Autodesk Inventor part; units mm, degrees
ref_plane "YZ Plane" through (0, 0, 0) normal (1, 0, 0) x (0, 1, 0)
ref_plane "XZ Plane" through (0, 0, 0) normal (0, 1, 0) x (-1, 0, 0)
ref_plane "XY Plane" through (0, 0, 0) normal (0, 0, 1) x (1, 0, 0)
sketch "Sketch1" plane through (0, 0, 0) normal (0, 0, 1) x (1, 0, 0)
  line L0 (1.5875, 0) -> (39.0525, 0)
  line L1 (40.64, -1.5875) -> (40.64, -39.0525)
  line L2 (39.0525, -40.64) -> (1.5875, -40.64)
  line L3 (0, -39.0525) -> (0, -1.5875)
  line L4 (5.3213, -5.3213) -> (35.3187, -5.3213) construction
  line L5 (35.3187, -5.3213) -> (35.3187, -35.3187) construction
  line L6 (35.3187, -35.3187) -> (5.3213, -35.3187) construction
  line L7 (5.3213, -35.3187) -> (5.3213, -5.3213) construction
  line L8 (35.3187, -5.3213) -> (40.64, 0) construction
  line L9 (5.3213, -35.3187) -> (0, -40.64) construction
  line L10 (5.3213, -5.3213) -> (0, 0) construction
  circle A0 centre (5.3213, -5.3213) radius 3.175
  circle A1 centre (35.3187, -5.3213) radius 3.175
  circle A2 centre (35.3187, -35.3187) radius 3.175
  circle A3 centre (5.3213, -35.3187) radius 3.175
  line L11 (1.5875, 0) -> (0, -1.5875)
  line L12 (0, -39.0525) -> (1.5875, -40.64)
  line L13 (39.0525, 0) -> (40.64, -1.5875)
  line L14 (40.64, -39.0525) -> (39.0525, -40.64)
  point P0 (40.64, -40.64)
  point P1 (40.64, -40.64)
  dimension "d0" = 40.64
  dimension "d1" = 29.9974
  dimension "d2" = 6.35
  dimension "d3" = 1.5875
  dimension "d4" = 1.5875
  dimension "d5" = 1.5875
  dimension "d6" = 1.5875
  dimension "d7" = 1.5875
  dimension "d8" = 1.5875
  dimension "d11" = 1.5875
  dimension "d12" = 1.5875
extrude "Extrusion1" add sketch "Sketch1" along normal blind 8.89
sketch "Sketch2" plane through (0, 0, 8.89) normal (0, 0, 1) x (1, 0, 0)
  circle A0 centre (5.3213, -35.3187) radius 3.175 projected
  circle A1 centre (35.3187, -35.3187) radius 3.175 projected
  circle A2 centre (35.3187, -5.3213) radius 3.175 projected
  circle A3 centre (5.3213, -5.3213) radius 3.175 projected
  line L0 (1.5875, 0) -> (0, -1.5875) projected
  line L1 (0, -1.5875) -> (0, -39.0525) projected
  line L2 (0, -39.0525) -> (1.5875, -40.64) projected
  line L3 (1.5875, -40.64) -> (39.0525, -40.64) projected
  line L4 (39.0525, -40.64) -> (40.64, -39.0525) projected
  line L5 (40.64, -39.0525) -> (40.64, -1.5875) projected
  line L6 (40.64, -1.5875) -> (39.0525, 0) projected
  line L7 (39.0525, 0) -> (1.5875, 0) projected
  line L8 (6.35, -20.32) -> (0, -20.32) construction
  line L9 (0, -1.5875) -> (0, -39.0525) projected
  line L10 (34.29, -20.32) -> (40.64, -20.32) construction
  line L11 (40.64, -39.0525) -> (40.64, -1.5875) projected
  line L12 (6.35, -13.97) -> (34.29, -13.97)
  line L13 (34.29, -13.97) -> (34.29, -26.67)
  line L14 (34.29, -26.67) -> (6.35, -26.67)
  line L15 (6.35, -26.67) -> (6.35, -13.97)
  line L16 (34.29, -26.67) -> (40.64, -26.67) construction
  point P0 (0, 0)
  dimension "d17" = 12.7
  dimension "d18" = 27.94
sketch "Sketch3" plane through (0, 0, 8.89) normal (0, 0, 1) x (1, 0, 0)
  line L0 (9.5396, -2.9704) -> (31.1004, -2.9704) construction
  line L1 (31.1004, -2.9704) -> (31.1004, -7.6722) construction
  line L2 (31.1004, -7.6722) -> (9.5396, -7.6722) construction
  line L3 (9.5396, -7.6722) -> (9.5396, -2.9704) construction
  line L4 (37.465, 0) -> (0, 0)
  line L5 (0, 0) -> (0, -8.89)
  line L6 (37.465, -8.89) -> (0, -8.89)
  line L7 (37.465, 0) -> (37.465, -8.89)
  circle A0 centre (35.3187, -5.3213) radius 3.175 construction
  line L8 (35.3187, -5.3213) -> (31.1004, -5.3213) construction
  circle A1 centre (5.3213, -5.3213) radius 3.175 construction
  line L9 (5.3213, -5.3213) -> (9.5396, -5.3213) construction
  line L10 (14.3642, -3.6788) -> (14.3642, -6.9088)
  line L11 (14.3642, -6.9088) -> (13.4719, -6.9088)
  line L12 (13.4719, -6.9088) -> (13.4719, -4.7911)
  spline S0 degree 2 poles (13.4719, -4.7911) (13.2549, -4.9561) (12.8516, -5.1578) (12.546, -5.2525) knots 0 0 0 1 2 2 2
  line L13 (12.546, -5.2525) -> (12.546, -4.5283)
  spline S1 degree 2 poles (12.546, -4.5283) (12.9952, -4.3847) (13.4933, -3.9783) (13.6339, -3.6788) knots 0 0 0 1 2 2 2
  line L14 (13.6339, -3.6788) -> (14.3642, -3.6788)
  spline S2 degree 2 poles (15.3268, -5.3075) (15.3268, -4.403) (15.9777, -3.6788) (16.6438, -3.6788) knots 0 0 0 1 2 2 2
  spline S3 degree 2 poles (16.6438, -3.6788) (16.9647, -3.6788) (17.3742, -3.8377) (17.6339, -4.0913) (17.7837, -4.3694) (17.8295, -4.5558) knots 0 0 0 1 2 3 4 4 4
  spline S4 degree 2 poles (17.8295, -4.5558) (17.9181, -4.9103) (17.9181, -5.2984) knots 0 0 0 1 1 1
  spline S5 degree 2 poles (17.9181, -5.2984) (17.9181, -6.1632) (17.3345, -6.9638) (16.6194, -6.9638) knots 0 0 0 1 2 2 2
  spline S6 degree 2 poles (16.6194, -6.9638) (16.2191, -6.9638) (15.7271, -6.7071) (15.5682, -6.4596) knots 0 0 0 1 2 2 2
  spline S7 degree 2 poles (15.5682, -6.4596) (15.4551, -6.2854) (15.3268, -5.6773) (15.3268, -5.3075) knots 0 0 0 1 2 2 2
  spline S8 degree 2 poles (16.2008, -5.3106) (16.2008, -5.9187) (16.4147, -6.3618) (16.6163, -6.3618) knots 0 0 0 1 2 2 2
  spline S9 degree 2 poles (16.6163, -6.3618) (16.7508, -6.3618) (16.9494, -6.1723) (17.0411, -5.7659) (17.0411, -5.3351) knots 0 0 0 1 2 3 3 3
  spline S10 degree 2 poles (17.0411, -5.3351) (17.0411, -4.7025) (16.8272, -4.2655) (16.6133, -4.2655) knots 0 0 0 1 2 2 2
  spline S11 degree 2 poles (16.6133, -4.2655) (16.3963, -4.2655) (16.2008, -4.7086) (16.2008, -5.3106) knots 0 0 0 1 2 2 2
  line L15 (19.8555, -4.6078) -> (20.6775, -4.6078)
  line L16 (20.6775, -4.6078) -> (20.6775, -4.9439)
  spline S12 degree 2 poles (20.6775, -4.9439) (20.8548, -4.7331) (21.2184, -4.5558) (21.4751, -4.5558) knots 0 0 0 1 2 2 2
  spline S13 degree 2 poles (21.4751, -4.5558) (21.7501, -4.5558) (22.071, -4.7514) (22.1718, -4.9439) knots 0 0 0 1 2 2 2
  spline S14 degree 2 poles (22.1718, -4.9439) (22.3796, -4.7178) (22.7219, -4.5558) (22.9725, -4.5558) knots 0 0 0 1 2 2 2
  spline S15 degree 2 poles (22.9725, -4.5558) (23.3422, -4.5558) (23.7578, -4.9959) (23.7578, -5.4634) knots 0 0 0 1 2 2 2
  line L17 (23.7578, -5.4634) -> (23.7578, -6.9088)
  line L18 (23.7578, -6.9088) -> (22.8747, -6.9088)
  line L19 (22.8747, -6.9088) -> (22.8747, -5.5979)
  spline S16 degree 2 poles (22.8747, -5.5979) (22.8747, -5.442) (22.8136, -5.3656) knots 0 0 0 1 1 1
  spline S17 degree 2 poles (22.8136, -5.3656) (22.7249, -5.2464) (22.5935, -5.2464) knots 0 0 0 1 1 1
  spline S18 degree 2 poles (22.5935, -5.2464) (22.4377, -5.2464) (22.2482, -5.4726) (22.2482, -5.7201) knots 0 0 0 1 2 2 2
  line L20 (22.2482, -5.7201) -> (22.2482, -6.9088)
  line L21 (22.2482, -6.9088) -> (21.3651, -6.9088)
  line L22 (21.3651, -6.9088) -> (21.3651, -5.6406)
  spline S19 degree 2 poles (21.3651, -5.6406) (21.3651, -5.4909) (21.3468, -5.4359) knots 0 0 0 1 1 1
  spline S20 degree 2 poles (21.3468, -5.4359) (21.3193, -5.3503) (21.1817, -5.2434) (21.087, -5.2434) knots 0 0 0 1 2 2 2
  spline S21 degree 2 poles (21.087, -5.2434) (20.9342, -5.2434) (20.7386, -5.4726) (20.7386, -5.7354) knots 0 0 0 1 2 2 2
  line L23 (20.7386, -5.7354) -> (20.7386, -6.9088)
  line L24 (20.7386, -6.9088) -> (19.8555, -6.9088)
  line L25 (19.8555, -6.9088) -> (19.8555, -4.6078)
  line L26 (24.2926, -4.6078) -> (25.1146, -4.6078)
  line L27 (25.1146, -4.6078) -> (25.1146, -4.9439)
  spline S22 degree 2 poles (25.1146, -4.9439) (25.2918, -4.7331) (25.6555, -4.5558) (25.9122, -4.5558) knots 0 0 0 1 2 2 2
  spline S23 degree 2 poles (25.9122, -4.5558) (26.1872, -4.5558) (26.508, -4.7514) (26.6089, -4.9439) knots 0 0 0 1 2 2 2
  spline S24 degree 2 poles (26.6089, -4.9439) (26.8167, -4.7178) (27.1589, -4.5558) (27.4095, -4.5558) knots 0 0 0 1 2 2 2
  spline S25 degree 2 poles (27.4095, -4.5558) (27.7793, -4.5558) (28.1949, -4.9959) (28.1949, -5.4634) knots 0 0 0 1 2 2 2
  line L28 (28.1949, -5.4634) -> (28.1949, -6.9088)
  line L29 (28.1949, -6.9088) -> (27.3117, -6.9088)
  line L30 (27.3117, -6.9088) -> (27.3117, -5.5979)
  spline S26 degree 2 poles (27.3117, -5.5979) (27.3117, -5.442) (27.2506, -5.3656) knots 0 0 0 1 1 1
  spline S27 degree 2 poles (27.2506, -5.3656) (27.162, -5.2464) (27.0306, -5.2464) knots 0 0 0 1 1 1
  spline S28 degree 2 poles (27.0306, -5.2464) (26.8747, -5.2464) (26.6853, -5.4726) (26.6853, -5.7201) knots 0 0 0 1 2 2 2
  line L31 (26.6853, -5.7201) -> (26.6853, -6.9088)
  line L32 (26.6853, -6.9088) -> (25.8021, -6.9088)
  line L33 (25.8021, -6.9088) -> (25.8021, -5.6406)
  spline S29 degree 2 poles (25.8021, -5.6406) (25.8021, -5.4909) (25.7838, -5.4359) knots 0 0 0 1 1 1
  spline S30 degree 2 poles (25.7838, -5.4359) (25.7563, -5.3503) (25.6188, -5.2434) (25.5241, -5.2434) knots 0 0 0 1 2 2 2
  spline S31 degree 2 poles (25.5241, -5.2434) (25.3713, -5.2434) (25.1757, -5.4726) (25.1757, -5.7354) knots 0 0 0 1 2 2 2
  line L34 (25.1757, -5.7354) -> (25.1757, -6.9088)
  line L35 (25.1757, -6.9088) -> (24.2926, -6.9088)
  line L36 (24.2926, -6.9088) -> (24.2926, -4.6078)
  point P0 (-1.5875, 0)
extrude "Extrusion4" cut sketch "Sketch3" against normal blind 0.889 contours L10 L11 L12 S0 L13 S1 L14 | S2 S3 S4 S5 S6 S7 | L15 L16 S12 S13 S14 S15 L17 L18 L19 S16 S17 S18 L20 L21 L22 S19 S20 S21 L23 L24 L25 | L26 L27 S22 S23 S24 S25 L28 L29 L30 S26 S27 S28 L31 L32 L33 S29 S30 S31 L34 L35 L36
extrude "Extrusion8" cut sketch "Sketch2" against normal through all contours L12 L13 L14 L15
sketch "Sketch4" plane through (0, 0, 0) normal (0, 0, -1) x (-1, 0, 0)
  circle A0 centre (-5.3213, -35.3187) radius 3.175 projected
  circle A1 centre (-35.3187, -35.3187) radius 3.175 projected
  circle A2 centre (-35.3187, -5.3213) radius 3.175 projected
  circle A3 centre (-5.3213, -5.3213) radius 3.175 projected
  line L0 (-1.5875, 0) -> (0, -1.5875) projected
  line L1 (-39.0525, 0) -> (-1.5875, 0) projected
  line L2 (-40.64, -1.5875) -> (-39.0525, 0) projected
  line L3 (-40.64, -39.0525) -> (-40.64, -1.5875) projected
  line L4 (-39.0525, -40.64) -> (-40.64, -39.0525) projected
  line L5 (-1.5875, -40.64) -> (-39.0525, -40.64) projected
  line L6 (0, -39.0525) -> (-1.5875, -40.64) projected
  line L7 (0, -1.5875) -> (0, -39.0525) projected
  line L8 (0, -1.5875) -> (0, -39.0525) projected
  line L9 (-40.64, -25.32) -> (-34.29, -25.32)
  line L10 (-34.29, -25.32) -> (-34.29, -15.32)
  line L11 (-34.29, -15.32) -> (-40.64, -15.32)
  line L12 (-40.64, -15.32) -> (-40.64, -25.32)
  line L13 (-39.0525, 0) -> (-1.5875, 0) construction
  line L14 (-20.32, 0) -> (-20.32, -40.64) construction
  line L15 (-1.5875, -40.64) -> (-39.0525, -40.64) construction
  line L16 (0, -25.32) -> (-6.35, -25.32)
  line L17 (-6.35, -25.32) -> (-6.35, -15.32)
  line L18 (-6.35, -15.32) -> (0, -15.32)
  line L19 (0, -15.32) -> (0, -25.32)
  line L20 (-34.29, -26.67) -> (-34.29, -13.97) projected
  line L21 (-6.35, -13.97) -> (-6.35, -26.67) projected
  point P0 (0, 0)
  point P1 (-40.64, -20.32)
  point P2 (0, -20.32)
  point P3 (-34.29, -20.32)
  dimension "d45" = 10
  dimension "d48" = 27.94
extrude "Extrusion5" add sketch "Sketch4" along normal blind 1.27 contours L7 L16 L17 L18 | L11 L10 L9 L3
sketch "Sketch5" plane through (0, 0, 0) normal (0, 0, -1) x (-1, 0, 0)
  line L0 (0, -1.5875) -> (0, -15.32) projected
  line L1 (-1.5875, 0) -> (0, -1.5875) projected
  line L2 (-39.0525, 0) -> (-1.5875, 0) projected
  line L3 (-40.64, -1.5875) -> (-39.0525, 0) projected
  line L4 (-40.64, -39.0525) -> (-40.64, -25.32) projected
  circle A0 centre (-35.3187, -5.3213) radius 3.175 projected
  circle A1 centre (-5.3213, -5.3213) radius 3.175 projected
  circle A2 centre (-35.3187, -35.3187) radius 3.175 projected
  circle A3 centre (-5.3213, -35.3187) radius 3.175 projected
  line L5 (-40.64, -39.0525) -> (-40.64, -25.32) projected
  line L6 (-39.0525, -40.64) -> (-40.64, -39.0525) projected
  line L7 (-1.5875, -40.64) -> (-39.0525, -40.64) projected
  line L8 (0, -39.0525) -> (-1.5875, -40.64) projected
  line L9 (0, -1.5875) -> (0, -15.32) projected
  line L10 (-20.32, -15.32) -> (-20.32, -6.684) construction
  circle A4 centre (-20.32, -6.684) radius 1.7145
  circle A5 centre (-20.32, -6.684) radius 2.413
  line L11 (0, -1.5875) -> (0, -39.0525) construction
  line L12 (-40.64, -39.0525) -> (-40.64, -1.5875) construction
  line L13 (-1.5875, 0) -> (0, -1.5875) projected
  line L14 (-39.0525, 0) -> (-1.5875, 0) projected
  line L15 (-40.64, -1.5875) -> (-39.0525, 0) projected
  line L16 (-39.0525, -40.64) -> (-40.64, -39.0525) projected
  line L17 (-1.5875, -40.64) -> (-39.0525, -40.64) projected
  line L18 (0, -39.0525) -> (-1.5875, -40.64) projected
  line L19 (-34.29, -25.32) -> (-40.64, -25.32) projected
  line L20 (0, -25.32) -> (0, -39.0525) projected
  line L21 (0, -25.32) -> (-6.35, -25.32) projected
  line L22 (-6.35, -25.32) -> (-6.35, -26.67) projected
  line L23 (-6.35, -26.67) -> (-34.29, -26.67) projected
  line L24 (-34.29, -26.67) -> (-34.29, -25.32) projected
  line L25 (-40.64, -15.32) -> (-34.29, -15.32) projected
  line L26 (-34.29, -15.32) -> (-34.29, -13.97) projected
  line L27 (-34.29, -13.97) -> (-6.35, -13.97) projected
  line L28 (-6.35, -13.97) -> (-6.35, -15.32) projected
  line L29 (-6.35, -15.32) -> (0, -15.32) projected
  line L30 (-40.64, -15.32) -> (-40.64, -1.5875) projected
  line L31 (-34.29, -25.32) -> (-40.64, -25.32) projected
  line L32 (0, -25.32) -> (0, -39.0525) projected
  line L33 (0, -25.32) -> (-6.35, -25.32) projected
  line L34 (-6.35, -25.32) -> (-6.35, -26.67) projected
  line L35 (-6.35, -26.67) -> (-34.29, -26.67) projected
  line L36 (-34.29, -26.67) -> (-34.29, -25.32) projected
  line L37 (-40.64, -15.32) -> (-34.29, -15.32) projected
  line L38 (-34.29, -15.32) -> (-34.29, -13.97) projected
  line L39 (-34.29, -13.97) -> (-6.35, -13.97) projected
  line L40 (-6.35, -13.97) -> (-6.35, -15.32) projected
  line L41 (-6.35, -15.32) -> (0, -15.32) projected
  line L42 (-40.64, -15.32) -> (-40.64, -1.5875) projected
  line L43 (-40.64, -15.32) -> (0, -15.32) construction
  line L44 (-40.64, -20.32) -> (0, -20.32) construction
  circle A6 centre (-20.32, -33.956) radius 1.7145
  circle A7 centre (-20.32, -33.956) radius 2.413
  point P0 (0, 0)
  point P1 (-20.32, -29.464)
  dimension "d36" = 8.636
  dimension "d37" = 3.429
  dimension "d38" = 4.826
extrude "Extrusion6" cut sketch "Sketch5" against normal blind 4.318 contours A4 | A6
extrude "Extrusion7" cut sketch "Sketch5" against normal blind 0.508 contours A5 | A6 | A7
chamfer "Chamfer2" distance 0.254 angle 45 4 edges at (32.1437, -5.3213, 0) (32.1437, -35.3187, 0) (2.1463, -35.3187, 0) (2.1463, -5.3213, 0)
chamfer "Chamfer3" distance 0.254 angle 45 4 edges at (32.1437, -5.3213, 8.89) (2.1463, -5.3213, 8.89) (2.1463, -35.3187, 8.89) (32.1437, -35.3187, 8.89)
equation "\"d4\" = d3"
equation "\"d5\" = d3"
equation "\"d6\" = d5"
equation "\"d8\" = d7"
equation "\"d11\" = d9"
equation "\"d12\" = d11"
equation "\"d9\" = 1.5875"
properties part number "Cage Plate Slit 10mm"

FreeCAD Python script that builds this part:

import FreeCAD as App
import Part
import Sketcher
from FreeCAD import Vector
Q = App.Units.Quantity


def edges_at(feature, points):
    """Names of the edges that pass closest to the given points."""
    edges = feature.Shape.Edges
    near = lambda p: min(range(len(edges)), key=lambda i: edges[i].distToShape(Part.Vertex(*p))[0])
    return sorted({f"Edge{near(p) + 1}" for p in points})


def add_polygon(sketch, points):
    """Adds a closed chain of lines whose ends are joined by coincident constraints."""
    first, n = sketch.GeometryCount, len(points)
    for a, b in zip(points, points[1:] + points[:1]):
        sketch.addGeometry(Part.LineSegment(App.Vector(*a, 0), App.Vector(*b, 0)), False)
    for i in range(n):
        sketch.addConstraint(Sketcher.Constraint("Coincident", first + i, 2, first + (i + 1) % n, 1))

doc = App.newDocument("Part")
params = doc.addObject("Spreadsheet::Sheet", "Params")
for row, (alias, value) in enumerate([
    ("sketch1_diameter", "0.25 in"),
    ("pad1_length", "0.35 in"),
    ("pocket1_length", "0.035 in"),
    ("sketch3_width", "1.1 in"),
    ("sketch3_height", "0.5 in"),
    ("sketch4_width", "0.25 in"),
    ("pad2_length", "0.05 in"),
    ("sketch5_diameter", "0.135 in"),
    ("pocket3_length", "0.17 in"),
    ("sketch6_diameter", "0.19 in"),
    ("sketch6_diameter2", "0.135 in"),
    ("pocket4_length", "0.02 in"),
    ("chamfer_size", "0.01 in"),
    ("chamfer2_size", "0.01 in"),
], start=1):
    params.set(f"A{row}", alias)
    params.set(f"B{row}", "=" + value)
    params.setAlias(f"B{row}", alias)

body = doc.addObject("PartDesign::Body", "Body")

sketch1 = doc.addObject("Sketcher::SketchObject", "Sketch")
body.addObject(sketch1)
sketch1.AttachmentSupport = (doc.XY_Plane, [""])
sketch1.MapMode = "FlatFace"
add_polygon(sketch1, [(39.0525, 0), (1.5875, 0), (0, -1.5875), (0, -39.0525), (1.5875, -40.64), (39.0525, -40.64), (40.64, -39.0525), (40.64, -1.5875)])
sketch1.addGeometry(Part.Circle(Vector(5.3213, -35.3187, 0), Vector(0, 0, 1), 3.175), False)
sketch1.addGeometry(Part.Circle(Vector(35.3187, -35.3187, 0), Vector(0, 0, 1), 3.175), False)
sketch1.addGeometry(Part.Circle(Vector(5.3213, -5.3213, 0), Vector(0, 0, 1), 3.175), False)
sketch1.addGeometry(Part.Circle(Vector(35.3187, -5.3213, 0), Vector(0, 0, 1), 3.175), False)
sketch1.addConstraint([
    Sketcher.Constraint("Horizontal", 0),
    Sketcher.Constraint("Vertical", 2),
    Sketcher.Constraint("Horizontal", 4),
    Sketcher.Constraint("Vertical", 6),
    Sketcher.Constraint("Equal", 8, 9),
    Sketcher.Constraint("Equal", 9, 10),
    Sketcher.Constraint("Equal", 10, 11),
    Sketcher.Constraint("PointOnObject", 0, 2, -1),
    Sketcher.Constraint("PointOnObject", 1, 2, -2),
    Sketcher.Constraint("Perpendicular", 1, 3),
    Sketcher.Constraint("Perpendicular", 3, 5),
    Sketcher.Constraint("Perpendicular", 5, 7),
    Sketcher.Constraint("Horizontal", 8, 3, 9, 3),
    Sketcher.Constraint("Horizontal", 10, 3, 11, 3),
    Sketcher.Constraint("Horizontal", 2, 2, 5, 2),
    Sketcher.Constraint("Horizontal", 1, 2, 6, 2),
    Sketcher.Constraint("Vertical", 8, 3, 10, 3),
    Sketcher.Constraint("Vertical", 9, 3, 11, 3),
    Sketcher.Constraint("Vertical", 0, 2, 3, 2),
    Sketcher.Constraint("Vertical", 4, 2, 7, 2),
    Sketcher.Constraint("Equal", 4, 2),
    Sketcher.Constraint("Diameter", 8, Q("0.25 in")),
    Sketcher.Constraint("DistanceY", 3, 2, -1, 1, Q("1.6 in")),
    Sketcher.Constraint("DistanceX", -1, 1, 0, 2, Q("0.0625 in")),
    Sketcher.Constraint("DistanceX", 8, 3, 9, 3, Q("1.181 in")),
    Sketcher.Constraint("DistanceY", 8, 3, 10, 3, Q("1.181 in")),
    Sketcher.Constraint("DistanceX", 0, 2, 10, 3, Q("0.147 in")),
    Sketcher.Constraint("DistanceY", 10, 3, 1, 2, Q("0.147 in")),
])
sketch1.setExpression("Constraints[29]", "Params.sketch1_diameter")
pad1 = doc.addObject("PartDesign::Pad", "Pad")
body.addObject(pad1)
pad1.Profile = sketch1
pad1.setExpression("Length", "Params.pad1_length")

sketch2 = doc.addObject("Sketcher::SketchObject", "Sketch001")
body.addObject(sketch2)
sketch2.AttachmentSupport = (doc.XY_Plane, [""])
sketch2.MapMode = "FlatFace"
sketch2.AttachmentOffset = App.Placement(Vector(0, 0, 0.35 * 25.4), App.Rotation())
sketch2.addGeometry([
    Part.LineSegment(Vector(14.3642, -6.9088, 0), Vector(14.3642, -3.6788, 0)),
    Part.LineSegment(Vector(14.3642, -3.6788, 0), Vector(13.6339, -3.6788, 0)),
    Part.BSplineCurve([Vector(12.546, -4.5283, 0), Vector(12.9952, -4.3847, 0), Vector(13.4933, -3.9783, 0), Vector(13.6339, -3.6788, 0)], [3, 1, 3], [0, 1, 2], False, 2, [1, 1, 1, 1], False),
    Part.LineSegment(Vector(12.546, -4.5283, 0), Vector(12.546, -5.2525, 0)),
    Part.BSplineCurve([Vector(13.4719, -4.7911, 0), Vector(13.2549, -4.9561, 0), Vector(12.8516, -5.1578, 0), Vector(12.546, -5.2525, 0)], [3, 1, 3], [0, 1, 2], False, 2, [1, 1, 1, 1], False),
    Part.LineSegment(Vector(13.4719, -4.7911, 0), Vector(13.4719, -6.9088, 0)),
    Part.LineSegment(Vector(13.4719, -6.9088, 0), Vector(14.3642, -6.9088, 0)),
    Part.BSplineCurve([Vector(15.3268, -5.3075, 0), Vector(15.3268, -4.403, 0), Vector(15.9777, -3.6788, 0), Vector(16.6438, -3.6788, 0)], [3, 1, 3], [0, 1, 2], False, 2, [1, 1, 1, 1], False),
    Part.BSplineCurve([Vector(15.5682, -6.4596, 0), Vector(15.4551, -6.2854, 0), Vector(15.3268, -5.6773, 0), Vector(15.3268, -5.3075, 0)], [3, 1, 3], [0, 1, 2], False, 2, [1, 1, 1, 1], False),
    Part.BSplineCurve([Vector(16.6194, -6.9638, 0), Vector(16.2191, -6.9638, 0), Vector(15.7271, -6.7071, 0), Vector(15.5682, -6.4596, 0)], [3, 1, 3], [0, 1, 2], False, 2, [1, 1, 1, 1], False),
    Part.BSplineCurve([Vector(17.9181, -5.2984, 0), Vector(17.9181, -6.1632, 0), Vector(17.3345, -6.9638, 0), Vector(16.6194, -6.9638, 0)], [3, 1, 3], [0, 1, 2], False, 2, [1, 1, 1, 1], False),
    Part.BSplineCurve([Vector(17.8295, -4.5558, 0), Vector(17.9181, -4.9103, 0), Vector(17.9181, -5.2984, 0)], [3, 3], [0, 1], False, 2, [1, 1, 1], False),
    Part.BSplineCurve([Vector(16.6438, -3.6788, 0), Vector(16.9647, -3.6788, 0), Vector(17.3742, -3.8377, 0), Vector(17.6339, -4.0913, 0), Vector(17.7837, -4.3694, 0), Vector(17.8295, -4.5558, 0)], [3, 1, 1, 1, 3], [0, 1, 2, 3, 4], False, 2, [1, 1, 1, 1, 1, 1], False),
    Part.BSplineCurve([Vector(16.2008, -5.3106, 0), Vector(16.2008, -5.9187, 0), Vector(16.4147, -6.3618, 0), Vector(16.6163, -6.3618, 0)], [3, 1, 3], [0, 1, 2], False, 2, [1, 1, 1, 1], False),
    Part.BSplineCurve([Vector(16.6133, -4.2655, 0), Vector(16.3963, -4.2655, 0), Vector(16.2008, -4.7086, 0), Vector(16.2008, -5.3106, 0)], [3, 1, 3], [0, 1, 2], False, 2, [1, 1, 1, 1], False),
    Part.BSplineCurve([Vector(17.0411, -5.3351, 0), Vector(17.0411, -4.7025, 0), Vector(16.8272, -4.2655, 0), Vector(16.6133, -4.2655, 0)], [3, 1, 3], [0, 1, 2], False, 2, [1, 1, 1, 1], False),
    Part.BSplineCurve([Vector(16.6163, -6.3618, 0), Vector(16.7508, -6.3618, 0), Vector(16.9494, -6.1723, 0), Vector(17.0411, -5.7659, 0), Vector(17.0411, -5.3351, 0)], [3, 1, 1, 3], [0, 1, 2, 3], False, 2, [1, 1, 1, 1, 1], False),
    Part.LineSegment(Vector(20.6775, -4.6078, 0), Vector(19.8555, -4.6078, 0)),
    Part.LineSegment(Vector(19.8555, -4.6078, 0), Vector(19.8555, -6.9088, 0)),
    Part.LineSegment(Vector(19.8555, -6.9088, 0), Vector(20.7386, -6.9088, 0)),
    Part.LineSegment(Vector(20.7386, -6.9088, 0), Vector(20.7386, -5.7354, 0)),
    Part.BSplineCurve([Vector(21.087, -5.2434, 0), Vector(20.9342, -5.2434, 0), Vector(20.7386, -5.4726, 0), Vector(20.7386, -5.7354, 0)], [3, 1, 3], [0, 1, 2], False, 2, [1, 1, 1, 1], False),
    Part.BSplineCurve([Vector(21.3468, -5.4359, 0), Vector(21.3193, -5.3503, 0), Vector(21.1817, -5.2434, 0), Vector(21.087, -5.2434, 0)], [3, 1, 3], [0, 1, 2], False, 2, [1, 1, 1, 1], False),
    Part.BSplineCurve([Vector(21.3651, -5.6406, 0), Vector(21.3651, -5.4909, 0), Vector(21.3468, -5.4359, 0)], [3, 3], [0, 1], False, 2, [1, 1, 1], False),
    Part.LineSegment(Vector(21.3651, -5.6406, 0), Vector(21.3651, -6.9088, 0)),
    Part.LineSegment(Vector(21.3651, -6.9088, 0), Vector(22.2482, -6.9088, 0)),
    Part.LineSegment(Vector(22.2482, -6.9088, 0), Vector(22.2482, -5.7201, 0)),
    Part.BSplineCurve([Vector(22.5935, -5.2464, 0), Vector(22.4377, -5.2464, 0), Vector(22.2482, -5.4726, 0), Vector(22.2482, -5.7201, 0)], [3, 1, 3], [0, 1, 2], False, 2, [1, 1, 1, 1], False),
    Part.BSplineCurve([Vector(22.8136, -5.3656, 0), Vector(22.7249, -5.2464, 0), Vector(22.5935, -5.2464, 0)], [3, 3], [0, 1], False, 2, [1, 1, 1], False),
    Part.BSplineCurve([Vector(22.8747, -5.5979, 0), Vector(22.8747, -5.442, 0), Vector(22.8136, -5.3656, 0)], [3, 3], [0, 1], False, 2, [1, 1, 1], False),
    Part.LineSegment(Vector(22.8747, -5.5979, 0), Vector(22.8747, -6.9088, 0)),
    Part.LineSegment(Vector(22.8747, -6.9088, 0), Vector(23.7578, -6.9088, 0)),
    Part.LineSegment(Vector(23.7578, -6.9088, 0), Vector(23.7578, -5.4634, 0)),
    Part.BSplineCurve([Vector(22.9725, -4.5558, 0), Vector(23.3422, -4.5558, 0), Vector(23.7578, -4.9959, 0), Vector(23.7578, -5.4634, 0)], [3, 1, 3], [0, 1, 2], False, 2, [1, 1, 1, 1], False),
    Part.BSplineCurve([Vector(22.1718, -4.9439, 0), Vector(22.3796, -4.7178, 0), Vector(22.7219, -4.5558, 0), Vector(22.9725, -4.5558, 0)], [3, 1, 3], [0, 1, 2], False, 2, [1, 1, 1, 1], False),
    Part.BSplineCurve([Vector(21.4751, -4.5558, 0), Vector(21.7501, -4.5558, 0), Vector(22.071, -4.7514, 0), Vector(22.1718, -4.9439, 0)], [3, 1, 3], [0, 1, 2], False, 2, [1, 1, 1, 1], False),
    Part.BSplineCurve([Vector(20.6775, -4.9439, 0), Vector(20.8548, -4.7331, 0), Vector(21.2184, -4.5558, 0), Vector(21.4751, -4.5558, 0)], [3, 1, 3], [0, 1, 2], False, 2, [1, 1, 1, 1], False),
    Part.LineSegment(Vector(20.6775, -4.9439, 0), Vector(20.6775, -4.6078, 0)),
    Part.LineSegment(Vector(25.1146, -4.6078, 0), Vector(24.2926, -4.6078, 0)),
    Part.LineSegment(Vector(24.2926, -4.6078, 0), Vector(24.2926, -6.9088, 0)),
    Part.LineSegment(Vector(24.2926, -6.9088, 0), Vector(25.1757, -6.9088, 0)),
    Part.LineSegment(Vector(25.1757, -6.9088, 0), Vector(25.1757, -5.7354, 0)),
    Part.BSplineCurve([Vector(25.5241, -5.2434, 0), Vector(25.3713, -5.2434, 0), Vector(25.1757, -5.4726, 0), Vector(25.1757, -5.7354, 0)], [3, 1, 3], [0, 1, 2], False, 2, [1, 1, 1, 1], False),
    Part.BSplineCurve([Vector(25.7838, -5.4359, 0), Vector(25.7563, -5.3503, 0), Vector(25.6188, -5.2434, 0), Vector(25.5241, -5.2434, 0)], [3, 1, 3], [0, 1, 2], False, 2, [1, 1, 1, 1], False),
    Part.BSplineCurve([Vector(25.8021, -5.6406, 0), Vector(25.8021, -5.4909, 0), Vector(25.7838, -5.4359, 0)], [3, 3], [0, 1], False, 2, [1, 1, 1], False),
    Part.LineSegment(Vector(25.8021, -5.6406, 0), Vector(25.8021, -6.9088, 0)),
    Part.LineSegment(Vector(25.8021, -6.9088, 0), Vector(26.6853, -6.9088, 0)),
    Part.LineSegment(Vector(26.6853, -6.9088, 0), Vector(26.6853, -5.7201, 0)),
    Part.BSplineCurve([Vector(27.0306, -5.2464, 0), Vector(26.8747, -5.2464, 0), Vector(26.6853, -5.4726, 0), Vector(26.6853, -5.7201, 0)], [3, 1, 3], [0, 1, 2], False, 2, [1, 1, 1, 1], False),
    Part.BSplineCurve([Vector(27.2506, -5.3656, 0), Vector(27.162, -5.2464, 0), Vector(27.0306, -5.2464, 0)], [3, 3], [0, 1], False, 2, [1, 1, 1], False),
    Part.BSplineCurve([Vector(27.3117, -5.5979, 0), Vector(27.3117, -5.442, 0), Vector(27.2506, -5.3656, 0)], [3, 3], [0, 1], False, 2, [1, 1, 1], False),
    Part.LineSegment(Vector(27.3117, -5.5979, 0), Vector(27.3117, -6.9088, 0)),
    Part.LineSegment(Vector(27.3117, -6.9088, 0), Vector(28.1949, -6.9088, 0)),
    Part.LineSegment(Vector(28.1949, -6.9088, 0), Vector(28.1949, -5.4634, 0)),
    Part.BSplineCurve([Vector(27.4095, -4.5558, 0), Vector(27.7793, -4.5558, 0), Vector(28.1949, -4.9959, 0), Vector(28.1949, -5.4634, 0)], [3, 1, 3], [0, 1, 2], False, 2, [1, 1, 1, 1], False),
    Part.BSplineCurve([Vector(26.6089, -4.9439, 0), Vector(26.8167, -4.7178, 0), Vector(27.1589, -4.5558, 0), Vector(27.4095, -4.5558, 0)], [3, 1, 3], [0, 1, 2], False, 2, [1, 1, 1, 1], False),
    Part.BSplineCurve([Vector(25.9122, -4.5558, 0), Vector(26.1872, -4.5558, 0), Vector(26.508, -4.7514, 0), Vector(26.6089, -4.9439, 0)], [3, 1, 3], [0, 1, 2], False, 2, [1, 1, 1, 1], False),
    Part.BSplineCurve([Vector(25.1146, -4.9439, 0), Vector(25.2918, -4.7331, 0), Vector(25.6555, -4.5558, 0), Vector(25.9122, -4.5558, 0)], [3, 1, 3], [0, 1, 2], False, 2, [1, 1, 1, 1], False),
    Part.LineSegment(Vector(25.1146, -4.9439, 0), Vector(25.1146, -4.6078, 0)),
], False)
sketch2.addConstraint([
    Sketcher.Constraint("Block", 2),
    Sketcher.Constraint("Block", 4),
    Sketcher.Constraint("Block", 7),
    Sketcher.Constraint("Block", 8),
    Sketcher.Constraint("Block", 9),
    Sketcher.Constraint("Block", 10),
    Sketcher.Constraint("Block", 11),
    Sketcher.Constraint("Block", 12),
    Sketcher.Constraint("Block", 13),
    Sketcher.Constraint("Block", 14),
    Sketcher.Constraint("Block", 15),
    Sketcher.Constraint("Block", 16),
    Sketcher.Constraint("Block", 21),
    Sketcher.Constraint("Block", 22),
    Sketcher.Constraint("Block", 23),
    Sketcher.Constraint("Block", 27),
    Sketcher.Constraint("Block", 28),
    Sketcher.Constraint("Block", 29),
    Sketcher.Constraint("Block", 33),
    Sketcher.Constraint("Block", 34),
    Sketcher.Constraint("Block", 35),
    Sketcher.Constraint("Block", 36),
    Sketcher.Constraint("Block", 42),
    Sketcher.Constraint("Block", 43),
    Sketcher.Constraint("Block", 44),
    Sketcher.Constraint("Block", 48),
    Sketcher.Constraint("Block", 49),
    Sketcher.Constraint("Block", 50),
    Sketcher.Constraint("Block", 54),
    Sketcher.Constraint("Block", 55),
    Sketcher.Constraint("Block", 56),
    Sketcher.Constraint("Block", 57),
    Sketcher.Constraint("Coincident", 0, 2, 1, 1),
    Sketcher.Constraint("Coincident", 1, 2, 2, 2),
    Sketcher.Constraint("Coincident", 2, 1, 3, 1),
    Sketcher.Constraint("Coincident", 3, 2, 4, 2),
    Sketcher.Constraint("Coincident", 4, 1, 5, 1),
    Sketcher.Constraint("Coincident", 5, 2, 6, 1),
    Sketcher.Constraint("Coincident", 6, 2, 0, 1),
    Sketcher.Constraint("Coincident", 17, 2, 18, 1),
    Sketcher.Constraint("Coincident", 18, 2, 19, 1),
    Sketcher.Constraint("Coincident", 19, 2, 20, 1),
    Sketcher.Constraint("Coincident", 20, 2, 21, 2),
    Sketcher.Constraint("Coincident", 23, 1, 24, 1),
    Sketcher.Constraint("Coincident", 24, 2, 25, 1),
    Sketcher.Constraint("Coincident", 25, 2, 26, 1),
    Sketcher.Constraint("Coincident", 26, 2, 27, 2),
    Sketcher.Constraint("Coincident", 29, 1, 30, 1),
    Sketcher.Constraint("Coincident", 30, 2, 31, 1),
    Sketcher.Constraint("Coincident", 31, 2, 32, 1),
    Sketcher.Constraint("Coincident", 32, 2, 33, 2),
    Sketcher.Constraint("Coincident", 36, 1, 37, 1),
    Sketcher.Constraint("Coincident", 37, 2, 17, 1),
    Sketcher.Constraint("Coincident", 38, 2, 39, 1),
    Sketcher.Constraint("Coincident", 39, 2, 40, 1),
    Sketcher.Constraint("Coincident", 40, 2, 41, 1),
    Sketcher.Constraint("Coincident", 41, 2, 42, 2),
    Sketcher.Constraint("Coincident", 44, 1, 45, 1),
    Sketcher.Constraint("Coincident", 45, 2, 46, 1),
    Sketcher.Constraint("Coincident", 46, 2, 47, 1),
    Sketcher.Constraint("Coincident", 47, 2, 48, 2),
    Sketcher.Constraint("Coincident", 50, 1, 51, 1),
    Sketcher.Constraint("Coincident", 51, 2, 52, 1),
    Sketcher.Constraint("Coincident", 52, 2, 53, 1),
    Sketcher.Constraint("Coincident", 53, 2, 54, 2),
    Sketcher.Constraint("Coincident", 57, 1, 58, 1),
    Sketcher.Constraint("Coincident", 58, 2, 38, 1),
    Sketcher.Constraint("Vertical", 0),
    Sketcher.Constraint("Horizontal", 1),
    Sketcher.Constraint("Vertical", 5),
    Sketcher.Constraint("Horizontal", 6),
    Sketcher.Constraint("Horizontal", 17),
    Sketcher.Constraint("Vertical", 18),
    Sketcher.Constraint("Horizontal", 19),
    Sketcher.Constraint("Vertical", 20),
    Sketcher.Constraint("Vertical", 24),
    Sketcher.Constraint("Horizontal", 25),
    Sketcher.Constraint("Vertical", 26),
    Sketcher.Constraint("Vertical", 30),
    Sketcher.Constraint("Horizontal", 31),
    Sketcher.Constraint("Vertical", 32),
    Sketcher.Constraint("Vertical", 37),
    Sketcher.Constraint("Horizontal", 38),
    Sketcher.Constraint("Vertical", 39),
    Sketcher.Constraint("Horizontal", 40),
    Sketcher.Constraint("Vertical", 41),
    Sketcher.Constraint("Vertical", 45),
    Sketcher.Constraint("Horizontal", 46),
    Sketcher.Constraint("Vertical", 47),
    Sketcher.Constraint("Vertical", 51),
    Sketcher.Constraint("Horizontal", 52),
    Sketcher.Constraint("Vertical", 53),
    Sketcher.Constraint("Vertical", 58),
    Sketcher.Constraint("DistanceY", 18, 2, 18, 1, Q("0.0906 in")),
    Sketcher.Constraint("DistanceY", 20, 1, 20, 2, Q("0.0462 in")),
    Sketcher.Constraint("DistanceY", 26, 1, 26, 2, Q("0.0468 in")),
    Sketcher.Constraint("DistanceY", 30, 2, 30, 1, Q("0.0516 in")),
    Sketcher.Constraint("DistanceY", 39, 2, 39, 1, Q("0.0906 in")),
    Sketcher.Constraint("DistanceY", 41, 1, 41, 2, Q("0.0462 in")),
    Sketcher.Constraint("DistanceY", 47, 1, 47, 2, Q("0.0468 in")),
    Sketcher.Constraint("DistanceY", 51, 2, 51, 1, Q("0.0516 in")),
    Sketcher.Constraint("DistanceY", 5, 2, -1, 1, Q("0.272 in")),
    Sketcher.Constraint("DistanceX", 1, 2, 1, 1, 0.7303),
    Sketcher.Constraint("DistanceX", 17, 2, 17, 1, 0.822),
    Sketcher.Constraint("DistanceX", 38, 2, 38, 1, 0.822),
])
pocket1 = doc.addObject("PartDesign::Pocket", "Pocket")
body.addObject(pocket1)
pocket1.Profile = sketch2
pocket1.setExpression("Length", "Params.pocket1_length")

sketch3 = doc.addObject("Sketcher::SketchObject", "Sketch002")
body.addObject(sketch3)
sketch3.AttachmentSupport = (doc.XY_Plane, [""])
sketch3.MapMode = "FlatFace"
sketch3.AttachmentOffset = App.Placement(Vector(0, 0, 0.35 * 25.4), App.Rotation())
add_polygon(sketch3, [(34.29, -13.97), (6.35, -13.97), (6.35, -26.67), (34.29, -26.67)])
sketch3.addConstraint([
    Sketcher.Constraint("Horizontal", 0),
    Sketcher.Constraint("Vertical", 1),
    Sketcher.Constraint("Horizontal", 2),
    Sketcher.Constraint("Vertical", 3),
    Sketcher.Constraint("DistanceX", 0, 2, 0, 1, Q("1.1 in")),
    Sketcher.Constraint("DistanceY", 1, 2, 1, 1, Q("0.5 in")),
    Sketcher.Constraint("DistanceX", -1, 1, 0, 2, Q("0.25 in")),
    Sketcher.Constraint("DistanceY", 0, 2, -1, 1, Q("0.55 in")),
])
sketch3.setExpression("Constraints[8]", "Params.sketch3_width")
sketch3.setExpression("Constraints[9]", "Params.sketch3_height")
pocket2 = doc.addObject("PartDesign::Pocket", "Pocket001")
body.addObject(pocket2)
pocket2.Profile = sketch3
pocket2.Type = "ThroughAll"

sketch4 = doc.addObject("Sketcher::SketchObject", "Sketch003")
body.addObject(sketch4)
sketch4.AttachmentSupport = (doc.XY_Plane, [""])
sketch4.MapMode = "FlatFace"
add_polygon(sketch4, [(0, -25.32), (0, -15.32), (6.35, -15.32), (6.35, -25.32)])
add_polygon(sketch4, [(34.29, -15.32), (40.64, -15.32), (40.64, -25.32), (34.29, -25.32)])
sketch4.addConstraint([
    Sketcher.Constraint("Vertical", 0),
    Sketcher.Constraint("Horizontal", 1),
    Sketcher.Constraint("Vertical", 2),
    Sketcher.Constraint("Horizontal", 3),
    Sketcher.Constraint("Horizontal", 4),
    Sketcher.Constraint("Vertical", 5),
    Sketcher.Constraint("Horizontal", 6),
    Sketcher.Constraint("Vertical", 7),
    Sketcher.Constraint("PointOnObject", 0, 2, -2),
    Sketcher.Constraint("Horizontal", 1, 2, 4, 2),
    Sketcher.Constraint("Horizontal", 3, 2, 5, 2),
    Sketcher.Constraint("Equal", 3, 4),
    Sketcher.Constraint("DistanceX", 2, 2, 6, 2, Q("1.1 in")),
    Sketcher.Constraint("DistanceY", 0, 1, 0, 2, Q("0.3937 in")),
    Sketcher.Constraint("DistanceX", 1, 1, 1, 2, Q("0.25 in")),
    Sketcher.Constraint("DistanceY", 0, 2, -1, 1, 15.32),
])
sketch4.setExpression("Constraints[22]", "Params.sketch4_width")
pad2 = doc.addObject("PartDesign::Pad", "Pad001")
body.addObject(pad2)
pad2.Profile = sketch4
pad2.setExpression("Length", "Params.pad2_length")
pad2.Reversed = True

sketch5 = doc.addObject("Sketcher::SketchObject", "Sketch004")
body.addObject(sketch5)
sketch5.AttachmentSupport = (doc.XY_Plane, [""])
sketch5.MapMode = "FlatFace"
sketch5.addGeometry([
    Part.Circle(Vector(20.32, -6.684, 0), Vector(0, 0, 1), 1.7145),
    Part.Circle(Vector(20.32, -33.956, 0), Vector(0, 0, 1), 1.7145),
], False)
sketch5.addConstraint([
    Sketcher.Constraint("Equal", 0, 1),
    Sketcher.Constraint("Vertical", 0, 3, 1, 3),
    Sketcher.Constraint("Diameter", 0, Q("0.135 in")),
    Sketcher.Constraint("DistanceX", -1, 1, 0, 3, Q("0.8 in")),
    Sketcher.Constraint("DistanceY", 1, 3, 0, 3, Q("1.0737 in")),
    Sketcher.Constraint("DistanceY", 0, 3, -1, 1, 6.684),
])
sketch5.setExpression("Constraints[2]", "Params.sketch5_diameter")
pocket3 = doc.addObject("PartDesign::Pocket", "Pocket002")
body.addObject(pocket3)
pocket3.Profile = sketch5
pocket3.setExpression("Length", "Params.pocket3_length")
pocket3.Reversed = True

sketch6 = doc.addObject("Sketcher::SketchObject", "Sketch005")
body.addObject(sketch6)
sketch6.AttachmentSupport = (doc.XY_Plane, [""])
sketch6.MapMode = "FlatFace"
sketch6.addGeometry([
    Part.Circle(Vector(20.32, -6.684, 0), Vector(0, 0, 1), 2.413),
    Part.Circle(Vector(20.32, -6.684, 0), Vector(0, 0, 1), 1.7145),
    Part.Circle(Vector(20.32, -33.956, 0), Vector(0, 0, 1), 2.413),
], False)
sketch6.addConstraint([
    Sketcher.Constraint("Coincident", 1, 3, 0, 3),
    Sketcher.Constraint("Equal", 0, 2),
    Sketcher.Constraint("Vertical", 1, 3, 2, 3),
    Sketcher.Constraint("Diameter", 0, Q("0.19 in")),
    Sketcher.Constraint("Diameter", 1, Q("0.135 in")),
    Sketcher.Constraint("DistanceX", -1, 1, 0, 3, Q("0.8 in")),
    Sketcher.Constraint("DistanceY", 2, 3, 0, 3, Q("1.0737 in")),
    Sketcher.Constraint("DistanceY", 0, 3, -1, 1, 6.684),
])
sketch6.setExpression("Constraints[3]", "Params.sketch6_diameter")
sketch6.setExpression("Constraints[4]", "Params.sketch6_diameter2")
pocket4 = doc.addObject("PartDesign::Pocket", "Pocket003")
body.addObject(pocket4)
pocket4.Profile = sketch6
pocket4.setExpression("Length", "Params.pocket4_length")
pocket4.Reversed = True
doc.recompute()

chamfer = doc.addObject("PartDesign::Chamfer", "Chamfer")
body.addObject(chamfer)
chamfer.Base = (pocket4, edges_at(pocket4, [
    (32.144, -5.321, 0),
    (32.144, -35.319, 0),
    (2.146, -35.319, 0),
    (2.146, -5.321, 0),
]))
chamfer.setExpression("Size", "Params.chamfer_size")
doc.recompute()

chamfer2 = doc.addObject("PartDesign::Chamfer", "Chamfer001")
body.addObject(chamfer2)
chamfer2.Base = (chamfer, edges_at(chamfer, [
    (32.144, -5.321, 8.89),
    (2.146, -5.321, 8.89),
    (2.146, -35.319, 8.89),
    (32.144, -35.319, 8.89),
]))
chamfer2.setExpression("Size", "Params.chamfer2_size")

doc.recompute()
